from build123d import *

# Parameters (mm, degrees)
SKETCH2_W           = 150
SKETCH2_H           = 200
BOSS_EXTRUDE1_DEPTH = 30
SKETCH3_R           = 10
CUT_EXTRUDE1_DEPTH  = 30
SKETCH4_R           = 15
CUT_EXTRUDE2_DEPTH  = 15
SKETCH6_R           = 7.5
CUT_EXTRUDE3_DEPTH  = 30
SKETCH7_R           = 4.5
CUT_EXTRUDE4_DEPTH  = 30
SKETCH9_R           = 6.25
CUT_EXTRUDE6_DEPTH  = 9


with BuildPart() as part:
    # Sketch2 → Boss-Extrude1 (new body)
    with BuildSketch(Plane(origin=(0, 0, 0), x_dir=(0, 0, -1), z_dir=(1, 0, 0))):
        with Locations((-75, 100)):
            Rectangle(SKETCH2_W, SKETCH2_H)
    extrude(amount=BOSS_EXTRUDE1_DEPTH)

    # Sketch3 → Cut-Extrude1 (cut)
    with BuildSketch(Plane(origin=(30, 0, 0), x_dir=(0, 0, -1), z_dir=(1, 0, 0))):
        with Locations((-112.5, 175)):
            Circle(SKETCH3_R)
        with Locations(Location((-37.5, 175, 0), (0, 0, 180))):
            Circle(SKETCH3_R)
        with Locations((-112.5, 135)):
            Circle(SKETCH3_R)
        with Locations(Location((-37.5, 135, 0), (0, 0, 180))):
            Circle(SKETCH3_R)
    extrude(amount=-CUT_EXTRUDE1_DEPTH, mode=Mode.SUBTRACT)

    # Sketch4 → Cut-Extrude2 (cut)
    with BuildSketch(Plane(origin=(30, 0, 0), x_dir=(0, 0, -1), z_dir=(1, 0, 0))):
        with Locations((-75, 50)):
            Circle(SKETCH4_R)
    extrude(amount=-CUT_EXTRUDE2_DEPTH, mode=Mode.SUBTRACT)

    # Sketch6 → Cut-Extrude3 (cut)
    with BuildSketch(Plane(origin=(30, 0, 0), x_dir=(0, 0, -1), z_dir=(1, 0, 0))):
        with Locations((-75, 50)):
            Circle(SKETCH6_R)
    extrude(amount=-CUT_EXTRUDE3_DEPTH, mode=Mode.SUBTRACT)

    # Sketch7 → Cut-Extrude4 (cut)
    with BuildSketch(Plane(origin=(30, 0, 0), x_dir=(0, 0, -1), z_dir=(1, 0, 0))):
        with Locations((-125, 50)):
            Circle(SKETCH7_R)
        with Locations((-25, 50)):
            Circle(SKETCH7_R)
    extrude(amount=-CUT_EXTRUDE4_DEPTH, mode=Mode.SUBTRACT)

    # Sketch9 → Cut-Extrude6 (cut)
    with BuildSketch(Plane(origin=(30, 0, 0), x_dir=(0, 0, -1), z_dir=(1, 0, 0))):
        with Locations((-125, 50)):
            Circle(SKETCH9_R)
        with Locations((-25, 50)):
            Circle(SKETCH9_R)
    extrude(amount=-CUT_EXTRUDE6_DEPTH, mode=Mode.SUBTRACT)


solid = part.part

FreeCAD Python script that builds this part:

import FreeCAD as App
import Part
import Sketcher

V = App.Vector
Q = App.Units.Quantity

doc = App.newDocument("Part")
body = doc.addObject("PartDesign::Body", "Body")

# Sketch on YZ plane
sketch1 = body.newObject("Sketcher::SketchObject", "Sketch")
sketch1.AttachmentSupport = (doc.getObject("YZ_Plane"), [""])
sketch1.MapMode = "FlatFace"
sketch1.addGeometry([
    Part.LineSegment(V(200, 150, 0), V(0, 150, 0)),
    Part.LineSegment(V(0, 150, 0), V(0, 0, 0)),
    Part.LineSegment(V(0, 0, 0), V(200, 0, 0)),
    Part.LineSegment(V(200, 0, 0), V(200, 150, 0)),
], False)
sketch1.addConstraint([
    Sketcher.Constraint("Coincident", 0, 2, 1, 1),
    Sketcher.Constraint("Coincident", 1, 2, 2, 1),
    Sketcher.Constraint("Coincident", 2, 2, 3, 1),
    Sketcher.Constraint("Coincident", 3, 2, 0, 1),
    Sketcher.Constraint("Horizontal", 0),
    Sketcher.Constraint("Vertical", 1),
    Sketcher.Constraint("Horizontal", 2),
    Sketcher.Constraint("Vertical", 3),
    Sketcher.Constraint("Coincident", 1, 2, -1, 1),
    Sketcher.Constraint("DistanceX", 0, 2, 0, 1, Q("200 mm")),
    Sketcher.Constraint("DistanceY", 1, 2, 1, 1, Q("150 mm")),
])
pad1 = body.newObject("PartDesign::Pad", "Pad")
pad1.Profile = sketch1
pad1.Length = 30

# Sketch on YZ plane
sketch2 = body.newObject("Sketcher::SketchObject", "Sketch001")
sketch2.AttachmentSupport = (doc.getObject("YZ_Plane"), [""])
sketch2.MapMode = "FlatFace"
sketch2.AttachmentOffset = App.Placement(V(0, 0, 30), App.Rotation())
sketch2.addGeometry([
    Part.Circle(V(175, 112.5, 0), V(0, 0, 1), 10),
    Part.Circle(V(175, 37.5, 0), V(0, 0, 1), 10),
    Part.Circle(V(135, 112.5, 0), V(0, 0, 1), 10),
    Part.Circle(V(135, 37.5, 0), V(0, 0, 1), 10),
], False)
sketch2.addConstraint([
    Sketcher.Constraint("Equal", 0, 1),
    Sketcher.Constraint("Equal", 1, 2),
    Sketcher.Constraint("Equal", 2, 3),
    Sketcher.Constraint("Horizontal", 0, 3, 2, 3),
    Sketcher.Constraint("Horizontal", 1, 3, 3, 3),
    Sketcher.Constraint("Vertical", 0, 3, 1, 3),
    Sketcher.Constraint("Vertical", 2, 3, 3, 3),
    Sketcher.Constraint("Diameter", 0, Q("20 mm")),
    Sketcher.Constraint("DistanceX", -1, 1, 0, 3, Q("175 mm")),
    Sketcher.Constraint("DistanceX", -1, 1, 2, 3, Q("135 mm")),
    Sketcher.Constraint("DistanceY", 1, 3, 0, 3, Q("75 mm")),
    Sketcher.Constraint("DistanceY", -1, 1, 0, 3, Q("112.5 mm")),
])
pocket1 = body.newObject("PartDesign::Pocket", "Pocket")
pocket1.Profile = sketch2
pocket1.Length = 30

# Sketch on YZ plane
sketch3 = body.newObject("Sketcher::SketchObject", "Sketch002")
sketch3.AttachmentSupport = (doc.getObject("YZ_Plane"), [""])
sketch3.MapMode = "FlatFace"
sketch3.AttachmentOffset = App.Placement(V(0, 0, 30), App.Rotation())
sketch3.addGeometry(Part.Circle(V(50, 75, 0), V(0, 0, 1), 15), False)
sketch3.addConstraint([
    Sketcher.Constraint("Diameter", 0, Q("30 mm")),
    Sketcher.Constraint("DistanceX", -1, 1, 0, 3, Q("50 mm")),
    Sketcher.Constraint("DistanceY", -1, 1, 0, 3, Q("75 mm")),
])
pocket2 = body.newObject("PartDesign::Pocket", "Pocket001")
pocket2.Profile = sketch3
pocket2.Length = 15

# Sketch on YZ plane
sketch4 = body.newObject("Sketcher::SketchObject", "Sketch003")
sketch4.AttachmentSupport = (doc.getObject("YZ_Plane"), [""])
sketch4.MapMode = "FlatFace"
sketch4.AttachmentOffset = App.Placement(V(0, 0, 30), App.Rotation())
sketch4.addGeometry(Part.Circle(V(50, 75, 0), V(0, 0, 1), 7.5), False)
sketch4.addConstraint([
    Sketcher.Constraint("Diameter", 0, Q("15 mm")),
    Sketcher.Constraint("DistanceX", -1, 1, 0, 3, Q("50 mm")),
    Sketcher.Constraint("DistanceY", -1, 1, 0, 3, Q("75 mm")),
])
pocket3 = body.newObject("PartDesign::Pocket", "Pocket002")
pocket3.Profile = sketch4
pocket3.Length = 30

# Sketch on YZ plane
sketch5 = body.newObject("Sketcher::SketchObject", "Sketch004")
sketch5.AttachmentSupport = (doc.getObject("YZ_Plane"), [""])
sketch5.MapMode = "FlatFace"
sketch5.AttachmentOffset = App.Placement(V(0, 0, 30), App.Rotation())
sketch5.addGeometry([
    Part.Circle(V(50, 125, 0), V(0, 0, 1), 4.5),
    Part.Circle(V(50, 25, 0), V(0, 0, 1), 4.5),
], False)
sketch5.addConstraint([
    Sketcher.Constraint("Equal", 0, 1),
    Sketcher.Constraint("Vertical", 0, 3, 1, 3),
    Sketcher.Constraint("Diameter", 0, Q("9 mm")),
    Sketcher.Constraint("DistanceX", -1, 1, 0, 3, Q("50 mm")),
    Sketcher.Constraint("DistanceY", -1, 1, 0, 3, Q("125 mm")),
    Sketcher.Constraint("DistanceY", -1, 1, 1, 3, Q("25 mm")),
])
pocket4 = body.newObject("PartDesign::Pocket", "Pocket003")
pocket4.Profile = sketch5
pocket4.Length = 30

# Sketch on YZ plane
sketch6 = body.newObject("Sketcher::SketchObject", "Sketch005")
sketch6.AttachmentSupport = (doc.getObject("YZ_Plane"), [""])
sketch6.MapMode = "FlatFace"
sketch6.AttachmentOffset = App.Placement(V(0, 0, 30), App.Rotation())
sketch6.addGeometry([
    Part.Circle(V(50, 125, 0), V(0, 0, 1), 6.25),
    Part.Circle(V(50, 25, 0), V(0, 0, 1), 6.25),
], False)
sketch6.addConstraint([
    Sketcher.Constraint("Equal", 0, 1),
    Sketcher.Constraint("Vertical", 0, 3, 1, 3),
    Sketcher.Constraint("Diameter", 0, Q("12.5 mm")),
    Sketcher.Constraint("DistanceX", -1, 1, 0, 3, Q("50 mm")),
    Sketcher.Constraint("DistanceY", -1, 1, 0, 3, Q("125 mm")),
    Sketcher.Constraint("DistanceY", -1, 1, 1, 3, Q("25 mm")),
])
pocket5 = body.newObject("PartDesign::Pocket", "Pocket004")
pocket5.Profile = sketch6
pocket5.Length = 9

doc.recompute()
